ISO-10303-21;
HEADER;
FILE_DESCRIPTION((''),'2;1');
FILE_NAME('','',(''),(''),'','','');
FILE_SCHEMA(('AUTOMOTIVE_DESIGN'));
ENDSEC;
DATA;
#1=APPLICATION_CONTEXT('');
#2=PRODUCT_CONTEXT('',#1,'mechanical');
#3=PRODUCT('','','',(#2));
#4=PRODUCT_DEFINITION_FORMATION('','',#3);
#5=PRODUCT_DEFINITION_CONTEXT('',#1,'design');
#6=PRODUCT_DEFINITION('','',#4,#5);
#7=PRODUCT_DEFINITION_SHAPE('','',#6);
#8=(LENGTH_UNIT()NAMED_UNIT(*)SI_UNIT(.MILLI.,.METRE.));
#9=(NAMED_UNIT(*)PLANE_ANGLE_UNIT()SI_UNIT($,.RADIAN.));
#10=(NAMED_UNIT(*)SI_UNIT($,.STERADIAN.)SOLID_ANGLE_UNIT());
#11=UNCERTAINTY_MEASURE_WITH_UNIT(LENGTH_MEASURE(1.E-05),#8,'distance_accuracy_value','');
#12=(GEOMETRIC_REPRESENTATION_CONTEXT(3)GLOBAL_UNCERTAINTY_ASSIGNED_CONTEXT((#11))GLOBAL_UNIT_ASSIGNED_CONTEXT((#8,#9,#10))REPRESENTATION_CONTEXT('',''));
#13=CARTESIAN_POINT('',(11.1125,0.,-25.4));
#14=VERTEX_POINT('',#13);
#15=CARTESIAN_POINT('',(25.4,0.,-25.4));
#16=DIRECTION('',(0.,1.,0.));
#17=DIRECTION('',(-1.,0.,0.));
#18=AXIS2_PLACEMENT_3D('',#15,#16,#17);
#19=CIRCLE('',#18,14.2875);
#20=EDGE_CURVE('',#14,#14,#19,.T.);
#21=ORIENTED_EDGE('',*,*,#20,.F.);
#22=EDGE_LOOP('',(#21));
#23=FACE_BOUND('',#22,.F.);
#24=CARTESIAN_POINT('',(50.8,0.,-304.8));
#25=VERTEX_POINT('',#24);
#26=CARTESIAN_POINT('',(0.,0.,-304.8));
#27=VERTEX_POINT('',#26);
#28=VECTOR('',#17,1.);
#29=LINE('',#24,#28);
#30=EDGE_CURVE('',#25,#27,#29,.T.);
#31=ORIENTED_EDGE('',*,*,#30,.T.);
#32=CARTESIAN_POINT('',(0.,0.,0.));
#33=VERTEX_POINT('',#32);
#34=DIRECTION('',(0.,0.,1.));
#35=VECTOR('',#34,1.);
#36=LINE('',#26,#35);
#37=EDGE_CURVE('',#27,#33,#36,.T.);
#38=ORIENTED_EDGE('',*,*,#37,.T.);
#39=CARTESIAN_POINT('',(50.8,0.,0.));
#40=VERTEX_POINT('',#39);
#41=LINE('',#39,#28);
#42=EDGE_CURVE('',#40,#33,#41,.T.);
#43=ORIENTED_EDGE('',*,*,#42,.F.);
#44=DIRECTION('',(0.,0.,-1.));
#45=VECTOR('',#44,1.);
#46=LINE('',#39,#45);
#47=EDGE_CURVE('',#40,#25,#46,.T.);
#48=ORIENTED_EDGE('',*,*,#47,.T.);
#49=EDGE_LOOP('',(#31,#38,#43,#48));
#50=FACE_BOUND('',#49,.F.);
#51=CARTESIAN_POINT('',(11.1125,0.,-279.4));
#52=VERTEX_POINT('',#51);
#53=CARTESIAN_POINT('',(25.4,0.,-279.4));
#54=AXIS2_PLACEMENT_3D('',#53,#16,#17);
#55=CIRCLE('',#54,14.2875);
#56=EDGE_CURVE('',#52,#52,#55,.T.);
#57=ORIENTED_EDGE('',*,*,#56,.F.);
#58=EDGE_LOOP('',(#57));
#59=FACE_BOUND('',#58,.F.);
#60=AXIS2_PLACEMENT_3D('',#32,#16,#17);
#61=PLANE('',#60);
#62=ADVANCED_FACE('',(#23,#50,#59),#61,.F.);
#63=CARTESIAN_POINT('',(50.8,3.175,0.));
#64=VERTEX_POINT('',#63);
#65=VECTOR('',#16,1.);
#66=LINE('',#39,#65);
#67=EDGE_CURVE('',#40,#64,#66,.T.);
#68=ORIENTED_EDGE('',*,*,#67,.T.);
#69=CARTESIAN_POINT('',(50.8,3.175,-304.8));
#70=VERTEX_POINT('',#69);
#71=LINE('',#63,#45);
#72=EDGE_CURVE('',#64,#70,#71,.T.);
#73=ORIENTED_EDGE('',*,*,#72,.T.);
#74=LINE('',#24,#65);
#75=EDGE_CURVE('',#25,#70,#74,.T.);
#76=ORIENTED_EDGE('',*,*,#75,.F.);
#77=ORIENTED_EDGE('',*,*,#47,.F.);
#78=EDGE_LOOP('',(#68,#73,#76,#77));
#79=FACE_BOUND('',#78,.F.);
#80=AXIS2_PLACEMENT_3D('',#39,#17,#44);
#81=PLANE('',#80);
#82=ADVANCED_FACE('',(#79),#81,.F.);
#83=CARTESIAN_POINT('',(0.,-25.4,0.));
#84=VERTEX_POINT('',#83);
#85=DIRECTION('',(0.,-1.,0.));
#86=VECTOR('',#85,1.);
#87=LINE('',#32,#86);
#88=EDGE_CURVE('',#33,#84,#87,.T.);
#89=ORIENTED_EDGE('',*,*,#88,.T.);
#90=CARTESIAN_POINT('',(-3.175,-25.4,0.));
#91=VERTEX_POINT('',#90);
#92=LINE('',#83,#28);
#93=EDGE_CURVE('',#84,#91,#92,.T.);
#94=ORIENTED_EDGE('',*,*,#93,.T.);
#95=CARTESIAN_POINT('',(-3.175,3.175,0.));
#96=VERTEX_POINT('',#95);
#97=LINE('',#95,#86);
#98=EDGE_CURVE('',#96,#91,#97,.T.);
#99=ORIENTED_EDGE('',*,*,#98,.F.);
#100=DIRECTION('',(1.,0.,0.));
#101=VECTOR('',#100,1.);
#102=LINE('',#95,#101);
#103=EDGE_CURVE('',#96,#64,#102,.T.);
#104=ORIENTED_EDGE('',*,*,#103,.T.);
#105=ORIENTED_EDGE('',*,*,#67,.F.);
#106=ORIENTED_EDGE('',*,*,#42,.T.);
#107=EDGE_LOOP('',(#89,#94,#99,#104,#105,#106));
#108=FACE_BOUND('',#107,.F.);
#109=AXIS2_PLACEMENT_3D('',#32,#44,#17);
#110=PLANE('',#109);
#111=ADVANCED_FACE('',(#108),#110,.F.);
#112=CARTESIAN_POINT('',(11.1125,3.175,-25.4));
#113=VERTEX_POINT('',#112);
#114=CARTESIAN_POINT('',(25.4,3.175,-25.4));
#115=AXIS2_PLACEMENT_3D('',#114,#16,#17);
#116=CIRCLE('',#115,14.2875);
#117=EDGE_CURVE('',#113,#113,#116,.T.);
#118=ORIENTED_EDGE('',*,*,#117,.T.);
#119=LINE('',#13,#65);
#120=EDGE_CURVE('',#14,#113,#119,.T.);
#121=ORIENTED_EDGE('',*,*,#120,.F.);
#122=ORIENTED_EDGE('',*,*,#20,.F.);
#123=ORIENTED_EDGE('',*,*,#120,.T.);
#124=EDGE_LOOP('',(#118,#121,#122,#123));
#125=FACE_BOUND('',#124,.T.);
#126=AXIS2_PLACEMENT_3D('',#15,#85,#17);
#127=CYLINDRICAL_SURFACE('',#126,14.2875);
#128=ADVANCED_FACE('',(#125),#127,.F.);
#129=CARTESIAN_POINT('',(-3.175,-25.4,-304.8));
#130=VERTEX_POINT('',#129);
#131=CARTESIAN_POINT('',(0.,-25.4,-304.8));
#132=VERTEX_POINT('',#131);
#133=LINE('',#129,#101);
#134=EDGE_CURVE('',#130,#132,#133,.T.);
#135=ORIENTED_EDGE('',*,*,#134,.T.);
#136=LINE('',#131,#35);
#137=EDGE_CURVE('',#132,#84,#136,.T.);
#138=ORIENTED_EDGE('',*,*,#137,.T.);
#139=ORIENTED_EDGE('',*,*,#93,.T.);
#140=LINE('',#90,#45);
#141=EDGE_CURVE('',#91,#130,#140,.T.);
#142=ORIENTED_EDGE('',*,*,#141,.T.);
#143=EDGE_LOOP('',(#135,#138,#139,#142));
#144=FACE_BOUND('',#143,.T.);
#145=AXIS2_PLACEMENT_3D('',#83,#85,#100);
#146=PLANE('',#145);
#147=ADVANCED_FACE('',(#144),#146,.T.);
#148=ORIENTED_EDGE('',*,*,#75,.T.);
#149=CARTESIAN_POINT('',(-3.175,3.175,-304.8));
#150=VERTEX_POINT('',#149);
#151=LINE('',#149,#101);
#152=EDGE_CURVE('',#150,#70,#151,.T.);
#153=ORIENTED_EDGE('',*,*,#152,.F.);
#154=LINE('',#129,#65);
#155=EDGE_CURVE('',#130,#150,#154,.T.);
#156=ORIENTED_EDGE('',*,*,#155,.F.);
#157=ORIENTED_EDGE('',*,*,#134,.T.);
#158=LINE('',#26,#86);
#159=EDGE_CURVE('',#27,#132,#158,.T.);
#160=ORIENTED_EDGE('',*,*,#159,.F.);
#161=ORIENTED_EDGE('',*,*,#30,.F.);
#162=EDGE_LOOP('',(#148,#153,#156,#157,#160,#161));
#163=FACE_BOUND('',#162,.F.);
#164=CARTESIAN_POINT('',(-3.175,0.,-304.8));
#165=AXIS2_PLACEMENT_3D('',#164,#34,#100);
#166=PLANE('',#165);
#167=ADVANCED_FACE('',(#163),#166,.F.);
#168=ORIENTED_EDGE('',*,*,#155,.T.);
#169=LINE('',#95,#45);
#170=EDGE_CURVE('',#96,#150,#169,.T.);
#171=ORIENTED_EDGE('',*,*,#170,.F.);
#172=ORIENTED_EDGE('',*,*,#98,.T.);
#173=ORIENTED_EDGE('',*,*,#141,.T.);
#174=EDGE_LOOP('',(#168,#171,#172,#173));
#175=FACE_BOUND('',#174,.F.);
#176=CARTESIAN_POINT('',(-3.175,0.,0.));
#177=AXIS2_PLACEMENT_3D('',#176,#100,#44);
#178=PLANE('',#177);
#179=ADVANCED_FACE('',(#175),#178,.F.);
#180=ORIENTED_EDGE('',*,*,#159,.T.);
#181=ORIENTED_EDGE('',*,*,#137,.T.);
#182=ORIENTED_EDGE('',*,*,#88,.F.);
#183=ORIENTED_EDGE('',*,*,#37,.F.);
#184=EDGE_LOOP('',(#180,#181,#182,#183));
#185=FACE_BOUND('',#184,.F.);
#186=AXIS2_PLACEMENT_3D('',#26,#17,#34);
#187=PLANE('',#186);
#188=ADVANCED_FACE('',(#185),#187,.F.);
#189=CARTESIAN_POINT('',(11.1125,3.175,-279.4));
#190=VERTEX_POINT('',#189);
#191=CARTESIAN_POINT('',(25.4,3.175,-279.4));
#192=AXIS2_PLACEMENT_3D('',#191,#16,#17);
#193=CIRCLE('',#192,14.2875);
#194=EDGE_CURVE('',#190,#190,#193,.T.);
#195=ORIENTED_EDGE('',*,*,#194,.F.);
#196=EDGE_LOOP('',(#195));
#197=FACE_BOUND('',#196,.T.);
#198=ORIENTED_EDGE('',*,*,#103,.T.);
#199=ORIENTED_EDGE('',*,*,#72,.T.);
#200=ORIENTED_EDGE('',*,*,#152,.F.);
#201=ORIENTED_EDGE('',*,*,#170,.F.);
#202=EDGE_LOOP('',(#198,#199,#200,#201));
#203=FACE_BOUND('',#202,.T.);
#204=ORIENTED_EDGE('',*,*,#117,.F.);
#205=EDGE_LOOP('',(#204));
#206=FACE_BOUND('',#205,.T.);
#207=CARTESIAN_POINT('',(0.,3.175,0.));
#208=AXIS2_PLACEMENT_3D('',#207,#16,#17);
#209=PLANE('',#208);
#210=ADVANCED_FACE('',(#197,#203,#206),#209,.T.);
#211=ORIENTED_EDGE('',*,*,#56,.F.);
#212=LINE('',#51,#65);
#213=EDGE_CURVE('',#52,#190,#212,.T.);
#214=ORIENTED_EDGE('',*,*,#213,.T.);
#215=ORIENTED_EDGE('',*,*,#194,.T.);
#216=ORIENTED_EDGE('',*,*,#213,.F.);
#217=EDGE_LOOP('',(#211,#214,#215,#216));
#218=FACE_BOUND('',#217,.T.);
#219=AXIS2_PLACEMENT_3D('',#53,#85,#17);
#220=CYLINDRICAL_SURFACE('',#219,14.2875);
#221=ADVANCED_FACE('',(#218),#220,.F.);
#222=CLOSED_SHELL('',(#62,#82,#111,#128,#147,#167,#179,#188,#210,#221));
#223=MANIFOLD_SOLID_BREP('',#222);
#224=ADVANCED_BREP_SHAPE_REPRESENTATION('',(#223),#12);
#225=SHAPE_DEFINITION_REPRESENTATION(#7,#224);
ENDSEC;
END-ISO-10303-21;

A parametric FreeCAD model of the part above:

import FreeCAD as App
import Part
import Sketcher
Q = App.Units.Quantity

doc = App.newDocument("Part")
params = doc.addObject("Spreadsheet::Sheet", "Params")
for row, (alias, value) in enumerate([
    ("sketch1_width", "2 in"),
    ("sketch1_height", "12 in"),
    ("sketch1_diameter", "1.125 in"),
    ("pad1_length", "0.125 in"),
    ("sketch2_height", "12 in"),
    ("sketch2_width", "0.125 in"),
    ("pad2_length", "0.125 in"),
    ("sketch3_height", "12 in"),
    ("sketch3_width", "0.125 in"),
    ("pad3_length", "1 in"),
], start=1):
    params.set(f"A{row}", alias)
    params.set(f"B{row}", "=" + value)
    params.setAlias(f"B{row}", alias)

body = doc.addObject("PartDesign::Body", "Body")

# Sketch on XZ plane
sketch1 = body.newObject("Sketcher::SketchObject", "Sketch")
sketch1.AttachmentSupport = (doc.getObject("XZ_Plane"), [""])
sketch1.MapMode = "FlatFace"
sketch1.addGeometry([
    Part.LineSegment(App.Vector(0, -304.8, 0), App.Vector(0, 0, 0)),  # 0
    Part.LineSegment(App.Vector(0, 0, 0), App.Vector(50.8, 0, 0)),  # 1
    Part.LineSegment(App.Vector(50.8, 0, 0), App.Vector(50.8, -304.8, 0)),  # 2
    Part.LineSegment(App.Vector(50.8, -304.8, 0), App.Vector(0, -304.8, 0)),  # 3
    Part.Circle(App.Vector(25.4, -279.4, 0), App.Vector(0, 0, 1), 14.2875),  # 4
    Part.Circle(App.Vector(25.4, -25.4, 0), App.Vector(0, 0, 1), 14.2875),  # 5
], False)
sketch1.addConstraint([
    Sketcher.Constraint("Coincident", 0, 2, 1, 1),
    Sketcher.Constraint("Coincident", 1, 2, 2, 1),
    Sketcher.Constraint("Coincident", 2, 2, 3, 1),
    Sketcher.Constraint("Coincident", 3, 2, 0, 1),
    Sketcher.Constraint("Vertical", 0),
    Sketcher.Constraint("Horizontal", 1),
    Sketcher.Constraint("Vertical", 2),
    Sketcher.Constraint("Horizontal", 3),
    Sketcher.Constraint("Coincident", 0, 2, -1, 1),
    Sketcher.Constraint("Equal", 4, 5),
    Sketcher.Constraint("Vertical", 4, 3, 5, 3),
    Sketcher.Constraint("DistanceX", 1, 1, 1, 2, Q("2 in")),
    Sketcher.Constraint("DistanceY", 0, 1, 0, 2, Q("12 in")),
    Sketcher.Constraint("Diameter", 4, Q("1.125 in")),
    Sketcher.Constraint("DistanceX", -1, 1, 4, 3, Q("1 in")),
    Sketcher.Constraint("DistanceY", 5, 3, -1, 1, Q("1 in")),
    Sketcher.Constraint("DistanceY", 2, 2, 4, 3, Q("1 in")),
])
sketch1.setExpression("Constraints[11]", "Params.sketch1_width")
sketch1.setExpression("Constraints[12]", "Params.sketch1_height")
sketch1.setExpression("Constraints[13]", "Params.sketch1_diameter")
pad1 = body.newObject("PartDesign::Pad", "Pad")
pad1.Profile = sketch1
pad1.setExpression("Length", "Params.pad1_length")
pad1.Reversed = True

# Sketch on YZ plane
sketch2 = body.newObject("Sketcher::SketchObject", "Sketch001")
sketch2.AttachmentSupport = (doc.getObject("YZ_Plane"), [""])
sketch2.MapMode = "FlatFace"
sketch2.addGeometry([
    Part.LineSegment(App.Vector(0, 0, 0), App.Vector(3.175, 0, 0)),
    Part.LineSegment(App.Vector(3.175, 0, 0), App.Vector(3.175, -304.8, 0)),
    Part.LineSegment(App.Vector(3.175, -304.8, 0), App.Vector(0, -304.8, 0)),
    Part.LineSegment(App.Vector(0, -304.8, 0), App.Vector(0, 0, 0)),
], False)
sketch2.addConstraint([
    Sketcher.Constraint("Coincident", 0, 2, 1, 1),
    Sketcher.Constraint("Coincident", 1, 2, 2, 1),
    Sketcher.Constraint("Coincident", 2, 2, 3, 1),
    Sketcher.Constraint("Coincident", 3, 2, 0, 1),
    Sketcher.Constraint("Horizontal", 0),
    Sketcher.Constraint("Vertical", 1),
    Sketcher.Constraint("Horizontal", 2),
    Sketcher.Constraint("Vertical", 3),
    Sketcher.Constraint("Coincident", 3, 2, -1, 1),
    Sketcher.Constraint("DistanceY", 1, 2, 1, 1, Q("12 in")),
    Sketcher.Constraint("DistanceX", 0, 1, 0, 2, Q("0.125 in")),
])
sketch2.setExpression("Constraints[9]", "Params.sketch2_height")
sketch2.setExpression("Constraints[10]", "Params.sketch2_width")
pad2 = body.newObject("PartDesign::Pad", "Pad001")
pad2.Profile = sketch2
pad2.setExpression("Length", "Params.pad2_length")
pad2.Reversed = True

# Sketch on XZ plane
sketch3 = body.newObject("Sketcher::SketchObject", "Sketch002")
sketch3.AttachmentSupport = (doc.getObject("XZ_Plane"), [""])
sketch3.MapMode = "FlatFace"
sketch3.addGeometry([
    Part.LineSegment(App.Vector(0, -304.8, 0), App.Vector(0, 0, 0)),
    Part.LineSegment(App.Vector(0, 0, 0), App.Vector(-3.175, 0, 0)),
    Part.LineSegment(App.Vector(-3.175, 0, 0), App.Vector(-3.175, -304.8, 0)),
    Part.LineSegment(App.Vector(-3.175, -304.8, 0), App.Vector(0, -304.8, 0)),
], False)
sketch3.addConstraint([
    Sketcher.Constraint("Coincident", 0, 2, 1, 1),
    Sketcher.Constraint("Coincident", 1, 2, 2, 1),
    Sketcher.Constraint("Coincident", 2, 2, 3, 1),
    Sketcher.Constraint("Coincident", 3, 2, 0, 1),
    Sketcher.Constraint("Vertical", 0),
    Sketcher.Constraint("Horizontal", 1),
    Sketcher.Constraint("Vertical", 2),
    Sketcher.Constraint("Horizontal", 3),
    Sketcher.Constraint("Coincident", 0, 2, -1, 1),
    Sketcher.Constraint("DistanceY", 0, 1, 0, 2, Q("12 in")),
    Sketcher.Constraint("DistanceX", 1, 2, 1, 1, Q("0.125 in")),
])
sketch3.setExpression("Constraints[9]", "Params.sketch3_height")
sketch3.setExpression("Constraints[10]", "Params.sketch3_width")
pad3 = body.newObject("PartDesign::Pad", "Pad002")
pad3.Profile = sketch3
pad3.setExpression("Length", "Params.pad3_length")

doc.recompute()
